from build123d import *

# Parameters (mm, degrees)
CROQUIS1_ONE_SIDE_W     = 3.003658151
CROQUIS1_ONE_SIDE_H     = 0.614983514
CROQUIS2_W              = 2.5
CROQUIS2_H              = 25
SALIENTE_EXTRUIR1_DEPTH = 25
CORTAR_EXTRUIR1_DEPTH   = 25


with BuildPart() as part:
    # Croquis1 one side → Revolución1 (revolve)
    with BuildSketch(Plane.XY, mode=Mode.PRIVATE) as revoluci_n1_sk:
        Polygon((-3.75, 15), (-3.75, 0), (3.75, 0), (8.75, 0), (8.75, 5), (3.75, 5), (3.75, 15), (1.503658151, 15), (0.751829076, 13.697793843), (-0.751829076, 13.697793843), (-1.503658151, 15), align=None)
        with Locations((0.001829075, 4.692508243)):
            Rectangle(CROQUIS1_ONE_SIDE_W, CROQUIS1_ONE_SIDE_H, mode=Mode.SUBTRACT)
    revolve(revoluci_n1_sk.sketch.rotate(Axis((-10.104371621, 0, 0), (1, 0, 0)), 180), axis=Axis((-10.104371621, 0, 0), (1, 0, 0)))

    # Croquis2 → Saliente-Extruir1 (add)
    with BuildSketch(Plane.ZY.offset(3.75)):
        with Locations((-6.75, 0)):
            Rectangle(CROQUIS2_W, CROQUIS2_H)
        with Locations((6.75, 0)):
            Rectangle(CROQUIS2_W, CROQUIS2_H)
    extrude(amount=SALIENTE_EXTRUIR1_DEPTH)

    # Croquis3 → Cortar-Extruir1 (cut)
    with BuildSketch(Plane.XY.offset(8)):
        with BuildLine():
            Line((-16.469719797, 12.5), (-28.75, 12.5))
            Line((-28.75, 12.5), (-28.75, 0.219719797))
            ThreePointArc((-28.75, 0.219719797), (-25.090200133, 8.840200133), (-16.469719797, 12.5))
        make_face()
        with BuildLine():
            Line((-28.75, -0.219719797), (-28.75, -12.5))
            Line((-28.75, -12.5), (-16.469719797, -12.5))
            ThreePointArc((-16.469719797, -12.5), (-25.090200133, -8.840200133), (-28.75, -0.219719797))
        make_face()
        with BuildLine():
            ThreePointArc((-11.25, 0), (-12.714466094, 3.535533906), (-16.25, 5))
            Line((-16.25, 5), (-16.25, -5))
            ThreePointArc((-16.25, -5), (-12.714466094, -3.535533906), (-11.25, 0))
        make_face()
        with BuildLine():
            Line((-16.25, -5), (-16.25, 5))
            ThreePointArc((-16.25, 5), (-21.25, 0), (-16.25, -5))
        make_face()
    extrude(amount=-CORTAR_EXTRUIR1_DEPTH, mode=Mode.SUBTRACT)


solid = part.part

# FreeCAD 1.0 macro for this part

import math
import FreeCAD as App
import Part
import Sketcher
from FreeCAD import Vector
Q = App.Units.Quantity


def add_polygon(sketch, points):
    """Adds a closed chain of lines whose ends are joined by coincident constraints."""
    first, n = sketch.GeometryCount, len(points)
    for a, b in zip(points, points[1:] + points[:1]):
        sketch.addGeometry(Part.LineSegment(App.Vector(*a, 0), App.Vector(*b, 0)), False)
    for i in range(n):
        sketch.addConstraint(Sketcher.Constraint("Coincident", first + i, 2, first + (i + 1) % n, 1))

doc = App.newDocument("Part")
body = doc.addObject("PartDesign::Body", "Body")

# Sketch on XY plane
sketch1 = body.newObject("Sketcher::SketchObject", "Sketch")
sketch1.AttachmentSupport = (doc.getObject("XY_Plane"), [""])
sketch1.MapMode = "FlatFace"
add_polygon(sketch1, [(-3.8, 15), (-3.8, 0), (8.8, 0), (8.8, 5), (3.8, 5), (3.8, 15), (1.5, 15), (0.8, 13.7), (-0.8, 13.7), (-1.5, 15)])  # lines 0-9
add_polygon(sketch1, [(1.5, 4.4), (-1.5, 4.4), (-1.5, 5), (1.5, 5)])  # lines 10-13
sketch1.addConstraint([
    Sketcher.Constraint("Vertical", 0),
    Sketcher.Constraint("Horizontal", 1),
    Sketcher.Constraint("Vertical", 2),
    Sketcher.Constraint("Horizontal", 3),
    Sketcher.Constraint("Vertical", 4),
    Sketcher.Constraint("Horizontal", 5),
    Sketcher.Constraint("Horizontal", 7),
    Sketcher.Constraint("Horizontal", 9),
    Sketcher.Constraint("Horizontal", 10),
    Sketcher.Constraint("Vertical", 11),
    Sketcher.Constraint("Horizontal", 12),
    Sketcher.Constraint("Vertical", 13),
    Sketcher.Constraint("Symmetric", 5, 2, 8, 2, -2),
    Sketcher.Constraint("PointOnObject", 0, 2, -1),
    Sketcher.Constraint("Horizontal", 3, 2, 11, 2),
    Sketcher.Constraint("Vertical", 5, 2, 12, 2),
    Sketcher.Constraint("Equal", 5, 9),
    Sketcher.Constraint("Equal", 3, 2),
    Sketcher.Constraint("Equal", 6, 8),
    Sketcher.Constraint("DistanceX", 3, 2, 3, 1, 5.0),
    Sketcher.Constraint("DistanceY", 0, 2, 0, 1, 15.0),
    Sketcher.Constraint("Angle", 6, Q("-120 deg")),
    Sketcher.Constraint("DistanceX", 1, 1, 1, 2, 12.5),
    Sketcher.Constraint("DistanceX", 10, 2, -1, 1, 1.5),
    Sketcher.Constraint("DistanceX", 5, 2, 5, 1, 2.246342),
    Sketcher.Constraint("DistanceX", 7, 2, 7, 1, 1.503658),
    Sketcher.Constraint("DistanceY", 11, 1, 11, 2, 0.614984),
])
revolution = body.newObject("PartDesign::Revolution", "Revolution")
revolution.Profile = sketch1
revolution.ReferenceAxis = (sketch1, ["H_Axis"])
revolution.Angle = 360

# Sketch on YZ plane
sketch2 = body.newObject("Sketcher::SketchObject", "Sketch001")
sketch2.AttachmentSupport = (doc.getObject("YZ_Plane"), [""])
sketch2.MapMode = "FlatFace"
sketch2.AttachmentOffset = App.Placement(Vector(0, 0, -3.75), App.Rotation())
add_polygon(sketch2, [(12.5, -8), (-12.5, -8), (-12.5, -5.5), (12.5, -5.5)])  # lines 0-3
add_polygon(sketch2, [(12.5, 5.5), (-12.5, 5.5), (-12.5, 8), (12.5, 8)])  # lines 4-7
sketch2.addConstraint([
    Sketcher.Constraint("Horizontal", 0),
    Sketcher.Constraint("Vertical", 1),
    Sketcher.Constraint("Horizontal", 2),
    Sketcher.Constraint("Vertical", 3),
    Sketcher.Constraint("Horizontal", 4),
    Sketcher.Constraint("Vertical", 5),
    Sketcher.Constraint("Horizontal", 6),
    Sketcher.Constraint("Vertical", 7),
    Sketcher.Constraint("Symmetric", 2, 2, 4, 2, -1, 1),
    Sketcher.Constraint("Symmetric", 0, 2, 6, 2, -1, 1),
    Sketcher.Constraint("Vertical", 1, 2, 4, 2),
    Sketcher.Constraint("DistanceX", 0, 2, 0, 1, 25.0),
    Sketcher.Constraint("DistanceY", 1, 1, 1, 2, 2.5),
    Sketcher.Constraint("DistanceY", 0, 2, -1, 1, 8.0),
])
pad1 = body.newObject("PartDesign::Pad", "Pad")
pad1.Profile = sketch2
pad1.Length = 25
pad1.Reversed = True

# Sketch on XY plane
sketch3 = body.newObject("Sketcher::SketchObject", "Sketch002")
sketch3.AttachmentSupport = (doc.getObject("XY_Plane"), [""])
sketch3.MapMode = "FlatFace"
sketch3.AttachmentOffset = App.Placement(Vector(0, 0, 8), App.Rotation())
sketch3.addGeometry([
    Part.LineSegment(Vector(-16.46972, 12.5, 0), Vector(-28.75, 12.5, 0)),  # 0
    Part.LineSegment(Vector(-28.75, 12.5, 0), Vector(-28.75, 0.21972, 0)),  # 1
    Part.ArcOfCircle(Part.Circle(Vector(-16.25, 0, 0), Vector(0, 0, 1), 12.501931), math.radians(91.007018), math.radians(178.992982)),  # 2
    Part.LineSegment(Vector(-28.75, -0.21972, 0), Vector(-28.75, -12.5, 0)),  # 3
    Part.LineSegment(Vector(-28.75, -12.5, 0), Vector(-16.46972, -12.5, 0)),  # 4
    Part.ArcOfCircle(Part.Circle(Vector(-16.25, 0, 0), Vector(0, 0, 1), 12.501931), math.radians(-178.992982), math.radians(-91.007018)),  # 5
    Part.ArcOfCircle(Part.Circle(Vector(-16.25, 0, 0), Vector(0, 0, 1), 5), math.radians(0), math.radians(90)),  # 6
    Part.ArcOfCircle(Part.Circle(Vector(-16.25, 0, 0), Vector(0, 0, 1), 5), math.radians(90), math.radians(270)),  # 7
    Part.ArcOfCircle(Part.Circle(Vector(-16.25, 0, 0), Vector(0, 0, 1), 5), math.radians(-90), math.radians(0)),  # 8
], False)
sketch3.addConstraint([
    Sketcher.Constraint("Coincident", 0, 2, 1, 1),
    Sketcher.Constraint("Coincident", 1, 2, 2, 2),
    Sketcher.Constraint("Coincident", 2, 1, 0, 1),
    Sketcher.Constraint("Coincident", 3, 2, 4, 1),
    Sketcher.Constraint("Coincident", 4, 2, 5, 2),
    Sketcher.Constraint("Coincident", 5, 1, 3, 1),
    Sketcher.Constraint("Tangent", 6, 2, 7, 1),
    Sketcher.Constraint("Tangent", 7, 2, 8, 1),
    Sketcher.Constraint("Tangent", 8, 2, 6, 1),
    Sketcher.Constraint("Horizontal", 0),
    Sketcher.Constraint("Vertical", 1),
    Sketcher.Constraint("Vertical", 3),
    Sketcher.Constraint("Horizontal", 4),
    Sketcher.Constraint("Coincident", 5, 3, 2, 3),
    Sketcher.Constraint("Coincident", 6, 3, 2, 3),
    Sketcher.Constraint("Equal", 2, 5),
    Sketcher.Constraint("Symmetric", 0, 2, 3, 2, -1),
    Sketcher.Constraint("Symmetric", 6, 2, 7, 2, -1),
    Sketcher.Constraint("PointOnObject", 8, 2, -1),
    Sketcher.Constraint("Vertical", 8, 3, 6, 2),
    Sketcher.Constraint("Equal", 4, 1),
    Sketcher.Constraint("Radius", 6, 5.0),
    Sketcher.Constraint("DistanceY", -1, 1, 0, 2, 12.5),
    Sketcher.Constraint("DistanceX", 2, 3, -1, 1, 16.25),
    Sketcher.Constraint("Radius", 2, 12.501931),
])
pocket1 = body.newObject("PartDesign::Pocket", "Pocket")
pocket1.Profile = sketch3
pocket1.Length = 25

doc.recompute()
